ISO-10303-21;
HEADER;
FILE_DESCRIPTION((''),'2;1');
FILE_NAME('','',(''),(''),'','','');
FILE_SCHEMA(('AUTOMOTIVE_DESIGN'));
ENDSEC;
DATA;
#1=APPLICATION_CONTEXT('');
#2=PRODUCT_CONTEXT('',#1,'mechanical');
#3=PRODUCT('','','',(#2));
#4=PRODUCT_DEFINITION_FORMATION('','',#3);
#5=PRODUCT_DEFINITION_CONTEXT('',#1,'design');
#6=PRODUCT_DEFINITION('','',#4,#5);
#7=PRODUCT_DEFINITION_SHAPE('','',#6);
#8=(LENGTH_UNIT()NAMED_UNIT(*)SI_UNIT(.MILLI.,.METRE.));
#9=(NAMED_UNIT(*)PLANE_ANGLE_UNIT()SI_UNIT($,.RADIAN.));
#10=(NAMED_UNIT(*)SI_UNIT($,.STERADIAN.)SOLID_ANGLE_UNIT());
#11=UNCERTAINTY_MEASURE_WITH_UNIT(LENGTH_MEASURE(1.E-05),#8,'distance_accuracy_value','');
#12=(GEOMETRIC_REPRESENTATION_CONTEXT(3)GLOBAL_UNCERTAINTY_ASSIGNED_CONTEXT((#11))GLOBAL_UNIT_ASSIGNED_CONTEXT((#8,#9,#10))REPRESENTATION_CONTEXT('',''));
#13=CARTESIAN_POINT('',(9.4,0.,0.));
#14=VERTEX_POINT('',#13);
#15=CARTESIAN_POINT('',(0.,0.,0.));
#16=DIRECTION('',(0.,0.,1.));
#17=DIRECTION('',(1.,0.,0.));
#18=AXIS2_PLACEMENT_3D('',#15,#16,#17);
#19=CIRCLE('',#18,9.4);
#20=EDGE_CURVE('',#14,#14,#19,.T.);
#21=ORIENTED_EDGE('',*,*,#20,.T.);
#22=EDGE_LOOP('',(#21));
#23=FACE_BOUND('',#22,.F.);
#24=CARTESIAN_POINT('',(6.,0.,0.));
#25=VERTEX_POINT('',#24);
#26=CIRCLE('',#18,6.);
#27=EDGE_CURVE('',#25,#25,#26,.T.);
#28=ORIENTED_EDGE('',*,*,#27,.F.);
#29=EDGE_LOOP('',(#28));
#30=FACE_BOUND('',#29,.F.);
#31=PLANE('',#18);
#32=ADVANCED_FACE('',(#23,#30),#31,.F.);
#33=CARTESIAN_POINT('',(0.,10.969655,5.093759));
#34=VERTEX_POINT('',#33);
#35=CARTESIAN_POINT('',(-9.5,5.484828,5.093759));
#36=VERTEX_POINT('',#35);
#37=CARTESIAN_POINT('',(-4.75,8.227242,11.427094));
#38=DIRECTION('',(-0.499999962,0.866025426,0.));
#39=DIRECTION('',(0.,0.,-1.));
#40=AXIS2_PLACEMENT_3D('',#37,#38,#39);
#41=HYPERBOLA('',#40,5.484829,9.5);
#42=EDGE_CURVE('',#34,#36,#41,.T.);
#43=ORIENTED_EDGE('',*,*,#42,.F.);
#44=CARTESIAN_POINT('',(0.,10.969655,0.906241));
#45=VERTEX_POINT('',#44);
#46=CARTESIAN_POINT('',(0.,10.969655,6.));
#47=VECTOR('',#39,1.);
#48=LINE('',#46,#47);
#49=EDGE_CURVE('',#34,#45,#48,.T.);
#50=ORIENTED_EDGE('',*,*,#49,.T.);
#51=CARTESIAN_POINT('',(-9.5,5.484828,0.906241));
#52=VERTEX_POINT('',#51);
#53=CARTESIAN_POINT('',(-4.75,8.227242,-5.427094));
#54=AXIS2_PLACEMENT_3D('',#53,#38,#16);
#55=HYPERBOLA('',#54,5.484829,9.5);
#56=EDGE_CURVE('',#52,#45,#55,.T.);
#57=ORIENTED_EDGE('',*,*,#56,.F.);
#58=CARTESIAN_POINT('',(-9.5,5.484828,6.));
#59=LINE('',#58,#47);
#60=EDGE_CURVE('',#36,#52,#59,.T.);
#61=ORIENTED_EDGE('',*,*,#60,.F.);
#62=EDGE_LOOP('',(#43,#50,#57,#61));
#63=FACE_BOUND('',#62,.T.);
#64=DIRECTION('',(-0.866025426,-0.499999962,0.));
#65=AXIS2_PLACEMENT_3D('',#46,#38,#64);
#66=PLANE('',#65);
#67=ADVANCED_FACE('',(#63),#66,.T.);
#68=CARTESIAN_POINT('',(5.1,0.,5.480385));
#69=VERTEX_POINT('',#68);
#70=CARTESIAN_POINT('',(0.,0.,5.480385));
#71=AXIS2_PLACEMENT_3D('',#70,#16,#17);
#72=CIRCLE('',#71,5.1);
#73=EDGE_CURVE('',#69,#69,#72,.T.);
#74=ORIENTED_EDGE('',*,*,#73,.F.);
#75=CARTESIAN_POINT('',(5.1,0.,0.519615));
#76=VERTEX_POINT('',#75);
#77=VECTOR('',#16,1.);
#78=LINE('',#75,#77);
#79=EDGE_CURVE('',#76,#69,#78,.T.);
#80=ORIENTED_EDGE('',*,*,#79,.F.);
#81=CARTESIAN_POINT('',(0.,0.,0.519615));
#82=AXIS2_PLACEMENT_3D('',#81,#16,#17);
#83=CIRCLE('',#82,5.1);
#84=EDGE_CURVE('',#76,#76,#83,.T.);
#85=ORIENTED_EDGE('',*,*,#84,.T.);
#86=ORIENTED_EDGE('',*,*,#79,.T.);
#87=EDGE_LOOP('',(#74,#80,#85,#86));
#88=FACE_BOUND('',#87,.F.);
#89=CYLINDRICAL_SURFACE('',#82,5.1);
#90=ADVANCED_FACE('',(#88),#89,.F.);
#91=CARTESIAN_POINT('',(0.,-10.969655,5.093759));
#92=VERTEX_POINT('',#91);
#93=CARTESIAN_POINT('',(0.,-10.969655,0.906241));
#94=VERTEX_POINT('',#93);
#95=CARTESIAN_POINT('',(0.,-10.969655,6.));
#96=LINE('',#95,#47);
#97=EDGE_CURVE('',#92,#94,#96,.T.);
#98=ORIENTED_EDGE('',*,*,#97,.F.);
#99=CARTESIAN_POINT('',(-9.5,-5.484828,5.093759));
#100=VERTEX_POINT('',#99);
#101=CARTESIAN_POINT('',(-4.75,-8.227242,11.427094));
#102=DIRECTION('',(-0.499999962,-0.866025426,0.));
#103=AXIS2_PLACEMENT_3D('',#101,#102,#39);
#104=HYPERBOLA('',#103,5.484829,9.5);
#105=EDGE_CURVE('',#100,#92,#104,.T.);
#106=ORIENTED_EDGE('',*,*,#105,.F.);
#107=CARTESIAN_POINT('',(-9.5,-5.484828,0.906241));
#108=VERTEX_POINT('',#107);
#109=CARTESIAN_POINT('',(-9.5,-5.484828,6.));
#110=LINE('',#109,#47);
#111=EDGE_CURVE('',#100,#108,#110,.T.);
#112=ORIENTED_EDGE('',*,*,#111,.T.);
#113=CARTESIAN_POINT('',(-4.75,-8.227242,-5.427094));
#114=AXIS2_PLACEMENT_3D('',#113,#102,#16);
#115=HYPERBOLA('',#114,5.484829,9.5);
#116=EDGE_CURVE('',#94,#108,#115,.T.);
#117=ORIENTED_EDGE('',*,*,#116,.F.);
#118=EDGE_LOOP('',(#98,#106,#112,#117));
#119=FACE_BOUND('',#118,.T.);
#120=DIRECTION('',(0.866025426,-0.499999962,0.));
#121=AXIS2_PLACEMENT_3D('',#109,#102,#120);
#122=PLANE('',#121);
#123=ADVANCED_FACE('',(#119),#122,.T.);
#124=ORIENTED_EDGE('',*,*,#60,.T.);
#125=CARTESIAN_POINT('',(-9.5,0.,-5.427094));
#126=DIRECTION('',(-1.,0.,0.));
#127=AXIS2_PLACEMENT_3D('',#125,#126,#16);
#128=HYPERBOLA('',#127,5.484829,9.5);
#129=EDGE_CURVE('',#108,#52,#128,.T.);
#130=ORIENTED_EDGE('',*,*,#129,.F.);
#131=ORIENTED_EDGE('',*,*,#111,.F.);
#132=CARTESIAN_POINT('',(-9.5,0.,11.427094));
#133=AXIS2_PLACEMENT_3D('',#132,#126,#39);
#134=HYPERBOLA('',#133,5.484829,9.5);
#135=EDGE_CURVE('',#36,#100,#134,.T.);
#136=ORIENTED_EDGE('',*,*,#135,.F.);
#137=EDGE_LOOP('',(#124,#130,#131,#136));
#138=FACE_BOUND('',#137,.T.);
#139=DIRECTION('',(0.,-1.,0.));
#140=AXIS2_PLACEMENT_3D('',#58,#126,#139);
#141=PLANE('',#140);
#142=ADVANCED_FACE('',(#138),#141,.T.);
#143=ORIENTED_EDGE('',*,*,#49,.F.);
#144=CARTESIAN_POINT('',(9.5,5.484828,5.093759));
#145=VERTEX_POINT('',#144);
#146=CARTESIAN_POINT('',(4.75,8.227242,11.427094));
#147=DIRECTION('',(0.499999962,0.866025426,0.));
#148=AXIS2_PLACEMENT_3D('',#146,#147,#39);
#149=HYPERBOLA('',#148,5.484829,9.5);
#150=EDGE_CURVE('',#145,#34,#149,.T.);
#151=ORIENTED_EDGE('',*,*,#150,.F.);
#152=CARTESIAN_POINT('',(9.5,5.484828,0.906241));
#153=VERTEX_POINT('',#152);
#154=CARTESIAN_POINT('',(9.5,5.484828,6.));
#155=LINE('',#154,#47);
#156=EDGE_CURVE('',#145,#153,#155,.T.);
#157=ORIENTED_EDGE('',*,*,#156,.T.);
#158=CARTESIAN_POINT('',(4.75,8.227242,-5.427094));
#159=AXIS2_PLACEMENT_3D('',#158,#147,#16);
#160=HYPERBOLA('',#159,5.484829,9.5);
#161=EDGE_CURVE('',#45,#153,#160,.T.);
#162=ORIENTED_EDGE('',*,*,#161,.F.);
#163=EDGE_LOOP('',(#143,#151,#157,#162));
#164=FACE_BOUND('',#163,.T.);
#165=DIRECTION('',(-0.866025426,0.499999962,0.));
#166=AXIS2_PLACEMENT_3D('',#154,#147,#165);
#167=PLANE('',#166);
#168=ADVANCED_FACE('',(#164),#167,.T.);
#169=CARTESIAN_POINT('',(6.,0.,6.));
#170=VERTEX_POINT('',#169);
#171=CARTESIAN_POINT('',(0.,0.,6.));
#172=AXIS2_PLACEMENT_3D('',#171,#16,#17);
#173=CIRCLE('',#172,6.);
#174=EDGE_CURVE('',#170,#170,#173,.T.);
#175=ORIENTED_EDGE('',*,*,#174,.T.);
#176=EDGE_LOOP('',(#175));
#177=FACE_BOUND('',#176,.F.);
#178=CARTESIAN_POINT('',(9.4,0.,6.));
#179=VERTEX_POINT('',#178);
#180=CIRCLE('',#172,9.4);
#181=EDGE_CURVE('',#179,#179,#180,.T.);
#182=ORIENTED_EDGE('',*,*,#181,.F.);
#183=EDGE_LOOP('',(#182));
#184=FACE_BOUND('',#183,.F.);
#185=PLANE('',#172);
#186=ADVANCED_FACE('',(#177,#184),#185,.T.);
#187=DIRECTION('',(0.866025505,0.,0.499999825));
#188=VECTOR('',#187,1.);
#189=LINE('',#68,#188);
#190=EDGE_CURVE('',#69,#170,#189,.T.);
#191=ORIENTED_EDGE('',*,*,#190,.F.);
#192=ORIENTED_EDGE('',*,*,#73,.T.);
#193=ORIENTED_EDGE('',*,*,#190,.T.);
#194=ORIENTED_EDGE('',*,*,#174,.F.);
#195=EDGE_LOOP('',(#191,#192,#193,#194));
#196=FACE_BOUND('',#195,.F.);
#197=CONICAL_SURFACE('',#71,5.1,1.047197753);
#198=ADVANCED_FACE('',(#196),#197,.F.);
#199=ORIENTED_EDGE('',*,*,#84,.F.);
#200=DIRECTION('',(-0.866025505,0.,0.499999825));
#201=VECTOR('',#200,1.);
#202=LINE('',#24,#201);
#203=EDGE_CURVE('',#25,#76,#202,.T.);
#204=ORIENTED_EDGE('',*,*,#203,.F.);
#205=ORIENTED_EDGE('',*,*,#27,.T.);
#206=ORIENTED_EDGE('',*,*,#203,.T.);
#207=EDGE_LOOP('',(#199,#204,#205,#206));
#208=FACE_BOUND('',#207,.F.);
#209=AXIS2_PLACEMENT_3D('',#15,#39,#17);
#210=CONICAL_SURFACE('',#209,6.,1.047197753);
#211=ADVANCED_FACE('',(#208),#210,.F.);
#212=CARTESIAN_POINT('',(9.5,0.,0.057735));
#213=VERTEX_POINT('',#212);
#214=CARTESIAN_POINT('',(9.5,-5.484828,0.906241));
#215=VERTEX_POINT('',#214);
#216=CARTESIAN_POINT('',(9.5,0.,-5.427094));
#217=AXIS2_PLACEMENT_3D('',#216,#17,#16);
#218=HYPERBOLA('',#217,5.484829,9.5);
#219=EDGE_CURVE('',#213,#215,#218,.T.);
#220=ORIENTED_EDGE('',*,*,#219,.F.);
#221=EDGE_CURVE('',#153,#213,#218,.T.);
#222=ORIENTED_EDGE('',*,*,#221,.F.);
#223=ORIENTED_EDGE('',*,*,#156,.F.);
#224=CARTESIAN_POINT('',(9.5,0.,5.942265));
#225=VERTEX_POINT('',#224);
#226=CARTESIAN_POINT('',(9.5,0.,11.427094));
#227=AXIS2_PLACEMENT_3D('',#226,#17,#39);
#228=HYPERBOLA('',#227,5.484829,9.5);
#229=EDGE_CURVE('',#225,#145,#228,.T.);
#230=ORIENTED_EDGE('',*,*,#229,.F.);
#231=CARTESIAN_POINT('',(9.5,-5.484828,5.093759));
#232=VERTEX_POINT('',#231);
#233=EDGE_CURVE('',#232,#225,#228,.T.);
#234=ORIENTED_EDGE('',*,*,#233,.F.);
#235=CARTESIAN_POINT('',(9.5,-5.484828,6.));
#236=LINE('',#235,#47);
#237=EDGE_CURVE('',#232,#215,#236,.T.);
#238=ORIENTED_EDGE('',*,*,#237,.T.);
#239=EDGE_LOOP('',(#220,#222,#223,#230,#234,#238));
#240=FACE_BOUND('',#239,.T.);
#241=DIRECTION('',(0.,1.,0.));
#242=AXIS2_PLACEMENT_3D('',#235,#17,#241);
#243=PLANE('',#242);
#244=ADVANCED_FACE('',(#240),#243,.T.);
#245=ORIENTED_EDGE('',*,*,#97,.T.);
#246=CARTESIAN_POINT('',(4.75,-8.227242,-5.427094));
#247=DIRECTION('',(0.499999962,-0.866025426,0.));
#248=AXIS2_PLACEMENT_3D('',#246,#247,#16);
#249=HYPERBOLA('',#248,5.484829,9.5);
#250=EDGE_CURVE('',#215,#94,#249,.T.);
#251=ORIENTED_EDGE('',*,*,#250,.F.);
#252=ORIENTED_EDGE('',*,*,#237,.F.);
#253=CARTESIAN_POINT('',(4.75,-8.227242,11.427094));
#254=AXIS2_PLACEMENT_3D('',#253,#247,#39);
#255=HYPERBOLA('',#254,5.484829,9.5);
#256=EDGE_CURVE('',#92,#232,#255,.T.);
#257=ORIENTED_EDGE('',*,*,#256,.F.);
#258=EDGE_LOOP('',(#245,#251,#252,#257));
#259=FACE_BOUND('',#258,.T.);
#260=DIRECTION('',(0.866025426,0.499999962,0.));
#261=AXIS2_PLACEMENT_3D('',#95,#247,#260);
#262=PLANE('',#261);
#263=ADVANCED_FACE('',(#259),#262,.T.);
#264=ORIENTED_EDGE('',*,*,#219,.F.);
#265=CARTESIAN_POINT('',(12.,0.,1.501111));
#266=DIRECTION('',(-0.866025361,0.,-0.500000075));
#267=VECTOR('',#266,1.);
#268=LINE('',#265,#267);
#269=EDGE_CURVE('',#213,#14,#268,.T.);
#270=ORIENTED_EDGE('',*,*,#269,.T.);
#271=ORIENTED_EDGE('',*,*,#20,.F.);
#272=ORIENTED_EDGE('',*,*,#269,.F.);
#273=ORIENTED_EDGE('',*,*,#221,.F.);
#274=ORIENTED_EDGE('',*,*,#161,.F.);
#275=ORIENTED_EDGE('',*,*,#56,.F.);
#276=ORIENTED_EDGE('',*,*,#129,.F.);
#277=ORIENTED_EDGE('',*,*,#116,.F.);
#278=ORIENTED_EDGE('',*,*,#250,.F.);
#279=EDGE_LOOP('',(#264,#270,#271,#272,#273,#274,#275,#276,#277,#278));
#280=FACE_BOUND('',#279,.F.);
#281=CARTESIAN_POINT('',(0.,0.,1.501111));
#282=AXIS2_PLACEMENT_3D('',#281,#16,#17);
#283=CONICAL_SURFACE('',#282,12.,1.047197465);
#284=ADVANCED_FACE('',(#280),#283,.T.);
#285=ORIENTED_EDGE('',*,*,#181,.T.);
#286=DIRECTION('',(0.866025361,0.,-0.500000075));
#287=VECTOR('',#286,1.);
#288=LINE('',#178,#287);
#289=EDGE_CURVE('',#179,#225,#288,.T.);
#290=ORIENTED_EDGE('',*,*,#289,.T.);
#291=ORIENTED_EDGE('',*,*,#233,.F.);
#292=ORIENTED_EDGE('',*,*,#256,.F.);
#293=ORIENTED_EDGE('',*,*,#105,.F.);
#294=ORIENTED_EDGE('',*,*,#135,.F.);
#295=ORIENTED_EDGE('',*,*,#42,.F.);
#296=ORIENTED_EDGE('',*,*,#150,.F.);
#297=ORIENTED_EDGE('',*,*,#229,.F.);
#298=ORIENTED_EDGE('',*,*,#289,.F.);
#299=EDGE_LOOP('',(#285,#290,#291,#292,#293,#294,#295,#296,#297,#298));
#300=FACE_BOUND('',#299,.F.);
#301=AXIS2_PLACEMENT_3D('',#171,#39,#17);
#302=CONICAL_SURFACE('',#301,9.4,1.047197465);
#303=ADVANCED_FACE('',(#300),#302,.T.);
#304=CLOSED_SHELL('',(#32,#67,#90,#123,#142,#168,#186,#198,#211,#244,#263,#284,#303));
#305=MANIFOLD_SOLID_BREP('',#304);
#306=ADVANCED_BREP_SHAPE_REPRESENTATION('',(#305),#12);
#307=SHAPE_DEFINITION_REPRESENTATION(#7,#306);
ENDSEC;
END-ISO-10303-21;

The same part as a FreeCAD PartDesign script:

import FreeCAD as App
import Part
import Sketcher
Q = App.Units.Quantity

doc = App.newDocument("Part")
body = doc.addObject("PartDesign::Body", "Body")

# Sketch on XZ plane
sketch1 = body.newObject("Sketcher::SketchObject", "Sketch")
sketch1.AttachmentSupport = (doc.getObject("XZ_Plane"), [""])
sketch1.MapMode = "FlatFace"
sketch1.addGeometry([
    Part.LineSegment(App.Vector(5.1, 0.5, 0), App.Vector(6, 0, 0)),  # 0
    Part.LineSegment(App.Vector(6, 0, 0), App.Vector(9.4, 0, 0)),  # 1
    Part.LineSegment(App.Vector(9.4, 0, 0), App.Vector(12, 1.5, 0)),  # 2
    Part.LineSegment(App.Vector(12, 1.5, 0), App.Vector(12, 4.5, 0)),  # 3
    Part.LineSegment(App.Vector(12, 4.5, 0), App.Vector(9.4, 6, 0)),  # 4
    Part.LineSegment(App.Vector(9.4, 6, 0), App.Vector(6, 6, 0)),  # 5
    Part.LineSegment(App.Vector(6, 6, 0), App.Vector(5.1, 5.5, 0)),  # 6
    Part.LineSegment(App.Vector(5.1, 5.5, 0), App.Vector(5.1, 0.5, 0)),  # 7
], False)
sketch1.addConstraint([
    Sketcher.Constraint("Coincident", 0, 2, 1, 1),
    Sketcher.Constraint("Coincident", 1, 2, 2, 1),
    Sketcher.Constraint("Coincident", 2, 2, 3, 1),
    Sketcher.Constraint("Coincident", 3, 2, 4, 1),
    Sketcher.Constraint("Coincident", 4, 2, 5, 1),
    Sketcher.Constraint("Coincident", 5, 2, 6, 1),
    Sketcher.Constraint("Coincident", 6, 2, 7, 1),
    Sketcher.Constraint("Coincident", 7, 2, 0, 1),
    Sketcher.Constraint("Horizontal", 1),
    Sketcher.Constraint("Vertical", 3),
    Sketcher.Constraint("Horizontal", 5),
    Sketcher.Constraint("Vertical", 7),
    Sketcher.Constraint("PointOnObject", 0, 2, -1),
    Sketcher.Constraint("Parallel", 0, 4),
    Sketcher.Constraint("Parallel", 2, 6),
    Sketcher.Constraint("Vertical", 1, 2, 4, 2),
    Sketcher.Constraint("Vertical", 0, 2, 5, 2),
    Sketcher.Constraint("Equal", 2, 4),
    Sketcher.Constraint("Angle", 0, Q("-29.999988 deg")),
    Sketcher.Constraint("DistanceX", 1, 1, 1, 2, Q("3.4 mm")),
    Sketcher.Constraint("DistanceX", -1, 1, 0, 2, Q("6 mm")),
    Sketcher.Constraint("DistanceX", -1, 1, 2, 2, Q("12 mm")),
    Sketcher.Constraint("DistanceY", -1, 1, 4, 2, Q("6 mm")),
    Sketcher.Constraint("DistanceX", -1, 1, 6, 2, Q("5.1 mm")),
])
revolution = body.newObject("PartDesign::Revolution", "Revolution")
revolution.Profile = sketch1
revolution.ReferenceAxis = (sketch1, ["V_Axis"])
revolution.Angle = 360

# Sketch on XY plane
sketch2 = body.newObject("Sketcher::SketchObject", "Sketch001")
sketch2.AttachmentSupport = (doc.getObject("XY_Plane"), [""])
sketch2.MapMode = "FlatFace"
sketch2.AttachmentOffset = App.Placement(App.Vector(0, 0, 6), App.Rotation())
sketch2.addGeometry([
    Part.Circle(App.Vector(0, 0, 0), App.Vector(0, 0, 1), 12),  # 0
    Part.LineSegment(App.Vector(10, 5, 0), App.Vector(10, -5, 0)),  # 1
    Part.LineSegment(App.Vector(10, -5, 0), App.Vector(0, -11, 0)),  # 2
    Part.LineSegment(App.Vector(0, -11, 0), App.Vector(-10, -5, 0)),  # 3
    Part.LineSegment(App.Vector(-10, -5, 0), App.Vector(-10, 5, 0)),  # 4
    Part.LineSegment(App.Vector(-10, 5, 0), App.Vector(0, 11, 0)),  # 5
    Part.LineSegment(App.Vector(0, 11, 0), App.Vector(10, 5, 0)),  # 6
], False)
sketch2.addConstraint([
    Sketcher.Constraint("Coincident", 1, 2, 2, 1),
    Sketcher.Constraint("Coincident", 2, 2, 3, 1),
    Sketcher.Constraint("Coincident", 3, 2, 4, 1),
    Sketcher.Constraint("Coincident", 4, 2, 5, 1),
    Sketcher.Constraint("Coincident", 5, 2, 6, 1),
    Sketcher.Constraint("Coincident", 6, 2, 1, 1),
    Sketcher.Constraint("Vertical", 1),
    Sketcher.Constraint("Vertical", 4),
    Sketcher.Constraint("Coincident", 0, 3, -1, 1),
    Sketcher.Constraint("Symmetric", 1, 2, 4, 2, -1, 1),
    Sketcher.Constraint("Symmetric", 2, 2, 5, 2, -1, 1),
    Sketcher.Constraint("PointOnObject", 2, 2, -2),
    Sketcher.Constraint("Parallel", 3, 6),
    Sketcher.Constraint("Horizontal", 1, 2, 3, 2),
    Sketcher.Constraint("Diameter", 0, Q("24 mm")),
    Sketcher.Constraint("Angle", 2, Q("-150.000003 deg")),
    Sketcher.Constraint("DistanceX", 3, 2, 1, 2, Q("19 mm")),
    Sketcher.Constraint("DistanceY", 1, 2, 1, 1, Q("10.969656 mm")),
])
pocket1 = body.newObject("PartDesign::Pocket", "Pocket")
pocket1.Profile = sketch2
pocket1.Length = 6

doc.recompute()
